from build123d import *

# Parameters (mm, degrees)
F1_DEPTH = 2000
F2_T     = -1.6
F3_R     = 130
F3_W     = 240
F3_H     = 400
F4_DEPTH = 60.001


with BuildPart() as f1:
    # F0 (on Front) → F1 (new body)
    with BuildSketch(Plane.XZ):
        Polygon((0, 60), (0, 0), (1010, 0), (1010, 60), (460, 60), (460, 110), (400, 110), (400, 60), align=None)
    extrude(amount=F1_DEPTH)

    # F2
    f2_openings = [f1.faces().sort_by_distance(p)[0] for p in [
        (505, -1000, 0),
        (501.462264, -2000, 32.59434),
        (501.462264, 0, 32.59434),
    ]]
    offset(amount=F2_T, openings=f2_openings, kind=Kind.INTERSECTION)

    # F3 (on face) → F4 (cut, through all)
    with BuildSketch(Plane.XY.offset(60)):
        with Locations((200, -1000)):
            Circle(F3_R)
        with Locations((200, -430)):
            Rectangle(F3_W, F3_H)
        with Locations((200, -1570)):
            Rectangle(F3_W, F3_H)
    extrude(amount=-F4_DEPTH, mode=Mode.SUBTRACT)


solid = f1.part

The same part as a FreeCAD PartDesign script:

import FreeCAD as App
import Part
import Sketcher
from FreeCAD import Vector
Q = App.Units.Quantity


def faces_at(feature, points):
    """Names of the faces that lie closest to the given points."""
    faces = feature.Shape.Faces
    near = lambda p: min(range(len(faces)), key=lambda i: faces[i].distToShape(Part.Vertex(*p))[0])
    return sorted({f"Face{near(p) + 1}" for p in points})


def add_polygon(sketch, points):
    """Adds a closed chain of lines whose ends are joined by coincident constraints."""
    first, n = sketch.GeometryCount, len(points)
    for a, b in zip(points, points[1:] + points[:1]):
        sketch.addGeometry(Part.LineSegment(App.Vector(*a, 0), App.Vector(*b, 0)), False)
    for i in range(n):
        sketch.addConstraint(Sketcher.Constraint("Coincident", first + i, 2, first + (i + 1) % n, 1))

doc = App.newDocument("Part")
body = doc.addObject("PartDesign::Body", "Body")

sketch1 = doc.addObject("Sketcher::SketchObject", "Sketch")
body.addObject(sketch1)
sketch1.AttachmentSupport = (doc.XZ_Plane, [""])
sketch1.MapMode = "FlatFace"
add_polygon(sketch1, [(0, 60), (0, 0), (1010, 0), (1010, 60), (460, 60), (460, 110), (400, 110), (400, 60)])
sketch1.addConstraint(Sketcher.Constraint("Vertical", 0))
sketch1.addConstraint(Sketcher.Constraint("Horizontal", 1))
sketch1.addConstraint(Sketcher.Constraint("Vertical", 2))
sketch1.addConstraint(Sketcher.Constraint("Horizontal", 3))
sketch1.addConstraint(Sketcher.Constraint("Vertical", 4))
sketch1.addConstraint(Sketcher.Constraint("Horizontal", 5))
sketch1.addConstraint(Sketcher.Constraint("Vertical", 6))
sketch1.addConstraint(Sketcher.Constraint("Horizontal", 7))
sketch1.addConstraint(Sketcher.Constraint("Coincident", 0, 2, -1, 1))
sketch1.addConstraint(Sketcher.Constraint("Horizontal", 3, 2, 6, 2))
sketch1.addConstraint(Sketcher.Constraint("Equal", 5, 0))
sketch1.addConstraint(Sketcher.Constraint("DistanceX", 1, 1, 1, 2, Q("1010 mm")))
sketch1.addConstraint(Sketcher.Constraint("DistanceX", 3, 2, 3, 1, Q("550 mm")))
sketch1.addConstraint(Sketcher.Constraint("DistanceX", 5, 2, 5, 1, Q("60 mm")))
sketch1.addConstraint(Sketcher.Constraint("DistanceY", 4, 1, 4, 2, Q("50 mm")))
pad1 = doc.addObject("PartDesign::Pad", "Pad")
body.addObject(pad1)
pad1.Profile = sketch1
pad1.Length = 2000
doc.recompute()

thickness = doc.addObject("PartDesign::Thickness", "Thickness")
body.addObject(thickness)
thickness.Base = (pad1, faces_at(pad1, [(505, -1000, 0), (505, -2000, 55), (505, 0, 55)]))
thickness.Value = 1.6
thickness.Reversed = True
thickness.Join = "Intersection"

sketch2 = doc.addObject("Sketcher::SketchObject", "Sketch001")
body.addObject(sketch2)
sketch2.AttachmentSupport = (doc.XY_Plane, [""])
sketch2.MapMode = "FlatFace"
sketch2.AttachmentOffset = App.Placement(Vector(0, 0, 60), App.Rotation())
sketch2.addGeometry(Part.Circle(Vector(200, -1000, 0), Vector(0, 0, 1), 130), False)
add_polygon(sketch2, [(80, -230), (80, -630), (320, -630), (320, -230)])
add_polygon(sketch2, [(80, -1370), (80, -1770), (320, -1770), (320, -1370)])
sketch2.addConstraint(Sketcher.Constraint("Vertical", 1))
sketch2.addConstraint(Sketcher.Constraint("Horizontal", 2))
sketch2.addConstraint(Sketcher.Constraint("Vertical", 3))
sketch2.addConstraint(Sketcher.Constraint("Horizontal", 4))
sketch2.addConstraint(Sketcher.Constraint("Vertical", 5))
sketch2.addConstraint(Sketcher.Constraint("Horizontal", 6))
sketch2.addConstraint(Sketcher.Constraint("Vertical", 7))
sketch2.addConstraint(Sketcher.Constraint("Horizontal", 8))
sketch2.addConstraint(Sketcher.Constraint("Vertical", 4, 2, 5, 2))
sketch2.addConstraint(Sketcher.Constraint("Vertical", 3, 2, 6, 2))
sketch2.addConstraint(Sketcher.Constraint("Equal", 3, 5))
sketch2.addConstraint(Sketcher.Constraint("Diameter", 0, Q("260 mm")))
sketch2.addConstraint(Sketcher.Constraint("DistanceX", 2, 1, 2, 2, Q("240 mm")))
sketch2.addConstraint(Sketcher.Constraint("DistanceY", 1, 2, 1, 1, Q("400 mm")))
sketch2.addConstraint(Sketcher.Constraint("DistanceX", -1, 1, 0, 3, Q("200 mm")))
sketch2.addConstraint(Sketcher.Constraint("DistanceY", 0, 3, -1, 1, Q("1000 mm")))
sketch2.addConstraint(Sketcher.Constraint("DistanceX", -1, 1, 1, 2, Q("80 mm")))
sketch2.addConstraint(Sketcher.Constraint("DistanceY", 1, 2, -1, 1, Q("630 mm")))
sketch2.addConstraint(Sketcher.Constraint("DistanceY", 5, 2, -1, 1, Q("1770 mm")))
pocket1 = doc.addObject("PartDesign::Pocket", "Pocket")
body.addObject(pocket1)
pocket1.Profile = sketch2
pocket1.Type = "ThroughAll"

doc.recompute()
